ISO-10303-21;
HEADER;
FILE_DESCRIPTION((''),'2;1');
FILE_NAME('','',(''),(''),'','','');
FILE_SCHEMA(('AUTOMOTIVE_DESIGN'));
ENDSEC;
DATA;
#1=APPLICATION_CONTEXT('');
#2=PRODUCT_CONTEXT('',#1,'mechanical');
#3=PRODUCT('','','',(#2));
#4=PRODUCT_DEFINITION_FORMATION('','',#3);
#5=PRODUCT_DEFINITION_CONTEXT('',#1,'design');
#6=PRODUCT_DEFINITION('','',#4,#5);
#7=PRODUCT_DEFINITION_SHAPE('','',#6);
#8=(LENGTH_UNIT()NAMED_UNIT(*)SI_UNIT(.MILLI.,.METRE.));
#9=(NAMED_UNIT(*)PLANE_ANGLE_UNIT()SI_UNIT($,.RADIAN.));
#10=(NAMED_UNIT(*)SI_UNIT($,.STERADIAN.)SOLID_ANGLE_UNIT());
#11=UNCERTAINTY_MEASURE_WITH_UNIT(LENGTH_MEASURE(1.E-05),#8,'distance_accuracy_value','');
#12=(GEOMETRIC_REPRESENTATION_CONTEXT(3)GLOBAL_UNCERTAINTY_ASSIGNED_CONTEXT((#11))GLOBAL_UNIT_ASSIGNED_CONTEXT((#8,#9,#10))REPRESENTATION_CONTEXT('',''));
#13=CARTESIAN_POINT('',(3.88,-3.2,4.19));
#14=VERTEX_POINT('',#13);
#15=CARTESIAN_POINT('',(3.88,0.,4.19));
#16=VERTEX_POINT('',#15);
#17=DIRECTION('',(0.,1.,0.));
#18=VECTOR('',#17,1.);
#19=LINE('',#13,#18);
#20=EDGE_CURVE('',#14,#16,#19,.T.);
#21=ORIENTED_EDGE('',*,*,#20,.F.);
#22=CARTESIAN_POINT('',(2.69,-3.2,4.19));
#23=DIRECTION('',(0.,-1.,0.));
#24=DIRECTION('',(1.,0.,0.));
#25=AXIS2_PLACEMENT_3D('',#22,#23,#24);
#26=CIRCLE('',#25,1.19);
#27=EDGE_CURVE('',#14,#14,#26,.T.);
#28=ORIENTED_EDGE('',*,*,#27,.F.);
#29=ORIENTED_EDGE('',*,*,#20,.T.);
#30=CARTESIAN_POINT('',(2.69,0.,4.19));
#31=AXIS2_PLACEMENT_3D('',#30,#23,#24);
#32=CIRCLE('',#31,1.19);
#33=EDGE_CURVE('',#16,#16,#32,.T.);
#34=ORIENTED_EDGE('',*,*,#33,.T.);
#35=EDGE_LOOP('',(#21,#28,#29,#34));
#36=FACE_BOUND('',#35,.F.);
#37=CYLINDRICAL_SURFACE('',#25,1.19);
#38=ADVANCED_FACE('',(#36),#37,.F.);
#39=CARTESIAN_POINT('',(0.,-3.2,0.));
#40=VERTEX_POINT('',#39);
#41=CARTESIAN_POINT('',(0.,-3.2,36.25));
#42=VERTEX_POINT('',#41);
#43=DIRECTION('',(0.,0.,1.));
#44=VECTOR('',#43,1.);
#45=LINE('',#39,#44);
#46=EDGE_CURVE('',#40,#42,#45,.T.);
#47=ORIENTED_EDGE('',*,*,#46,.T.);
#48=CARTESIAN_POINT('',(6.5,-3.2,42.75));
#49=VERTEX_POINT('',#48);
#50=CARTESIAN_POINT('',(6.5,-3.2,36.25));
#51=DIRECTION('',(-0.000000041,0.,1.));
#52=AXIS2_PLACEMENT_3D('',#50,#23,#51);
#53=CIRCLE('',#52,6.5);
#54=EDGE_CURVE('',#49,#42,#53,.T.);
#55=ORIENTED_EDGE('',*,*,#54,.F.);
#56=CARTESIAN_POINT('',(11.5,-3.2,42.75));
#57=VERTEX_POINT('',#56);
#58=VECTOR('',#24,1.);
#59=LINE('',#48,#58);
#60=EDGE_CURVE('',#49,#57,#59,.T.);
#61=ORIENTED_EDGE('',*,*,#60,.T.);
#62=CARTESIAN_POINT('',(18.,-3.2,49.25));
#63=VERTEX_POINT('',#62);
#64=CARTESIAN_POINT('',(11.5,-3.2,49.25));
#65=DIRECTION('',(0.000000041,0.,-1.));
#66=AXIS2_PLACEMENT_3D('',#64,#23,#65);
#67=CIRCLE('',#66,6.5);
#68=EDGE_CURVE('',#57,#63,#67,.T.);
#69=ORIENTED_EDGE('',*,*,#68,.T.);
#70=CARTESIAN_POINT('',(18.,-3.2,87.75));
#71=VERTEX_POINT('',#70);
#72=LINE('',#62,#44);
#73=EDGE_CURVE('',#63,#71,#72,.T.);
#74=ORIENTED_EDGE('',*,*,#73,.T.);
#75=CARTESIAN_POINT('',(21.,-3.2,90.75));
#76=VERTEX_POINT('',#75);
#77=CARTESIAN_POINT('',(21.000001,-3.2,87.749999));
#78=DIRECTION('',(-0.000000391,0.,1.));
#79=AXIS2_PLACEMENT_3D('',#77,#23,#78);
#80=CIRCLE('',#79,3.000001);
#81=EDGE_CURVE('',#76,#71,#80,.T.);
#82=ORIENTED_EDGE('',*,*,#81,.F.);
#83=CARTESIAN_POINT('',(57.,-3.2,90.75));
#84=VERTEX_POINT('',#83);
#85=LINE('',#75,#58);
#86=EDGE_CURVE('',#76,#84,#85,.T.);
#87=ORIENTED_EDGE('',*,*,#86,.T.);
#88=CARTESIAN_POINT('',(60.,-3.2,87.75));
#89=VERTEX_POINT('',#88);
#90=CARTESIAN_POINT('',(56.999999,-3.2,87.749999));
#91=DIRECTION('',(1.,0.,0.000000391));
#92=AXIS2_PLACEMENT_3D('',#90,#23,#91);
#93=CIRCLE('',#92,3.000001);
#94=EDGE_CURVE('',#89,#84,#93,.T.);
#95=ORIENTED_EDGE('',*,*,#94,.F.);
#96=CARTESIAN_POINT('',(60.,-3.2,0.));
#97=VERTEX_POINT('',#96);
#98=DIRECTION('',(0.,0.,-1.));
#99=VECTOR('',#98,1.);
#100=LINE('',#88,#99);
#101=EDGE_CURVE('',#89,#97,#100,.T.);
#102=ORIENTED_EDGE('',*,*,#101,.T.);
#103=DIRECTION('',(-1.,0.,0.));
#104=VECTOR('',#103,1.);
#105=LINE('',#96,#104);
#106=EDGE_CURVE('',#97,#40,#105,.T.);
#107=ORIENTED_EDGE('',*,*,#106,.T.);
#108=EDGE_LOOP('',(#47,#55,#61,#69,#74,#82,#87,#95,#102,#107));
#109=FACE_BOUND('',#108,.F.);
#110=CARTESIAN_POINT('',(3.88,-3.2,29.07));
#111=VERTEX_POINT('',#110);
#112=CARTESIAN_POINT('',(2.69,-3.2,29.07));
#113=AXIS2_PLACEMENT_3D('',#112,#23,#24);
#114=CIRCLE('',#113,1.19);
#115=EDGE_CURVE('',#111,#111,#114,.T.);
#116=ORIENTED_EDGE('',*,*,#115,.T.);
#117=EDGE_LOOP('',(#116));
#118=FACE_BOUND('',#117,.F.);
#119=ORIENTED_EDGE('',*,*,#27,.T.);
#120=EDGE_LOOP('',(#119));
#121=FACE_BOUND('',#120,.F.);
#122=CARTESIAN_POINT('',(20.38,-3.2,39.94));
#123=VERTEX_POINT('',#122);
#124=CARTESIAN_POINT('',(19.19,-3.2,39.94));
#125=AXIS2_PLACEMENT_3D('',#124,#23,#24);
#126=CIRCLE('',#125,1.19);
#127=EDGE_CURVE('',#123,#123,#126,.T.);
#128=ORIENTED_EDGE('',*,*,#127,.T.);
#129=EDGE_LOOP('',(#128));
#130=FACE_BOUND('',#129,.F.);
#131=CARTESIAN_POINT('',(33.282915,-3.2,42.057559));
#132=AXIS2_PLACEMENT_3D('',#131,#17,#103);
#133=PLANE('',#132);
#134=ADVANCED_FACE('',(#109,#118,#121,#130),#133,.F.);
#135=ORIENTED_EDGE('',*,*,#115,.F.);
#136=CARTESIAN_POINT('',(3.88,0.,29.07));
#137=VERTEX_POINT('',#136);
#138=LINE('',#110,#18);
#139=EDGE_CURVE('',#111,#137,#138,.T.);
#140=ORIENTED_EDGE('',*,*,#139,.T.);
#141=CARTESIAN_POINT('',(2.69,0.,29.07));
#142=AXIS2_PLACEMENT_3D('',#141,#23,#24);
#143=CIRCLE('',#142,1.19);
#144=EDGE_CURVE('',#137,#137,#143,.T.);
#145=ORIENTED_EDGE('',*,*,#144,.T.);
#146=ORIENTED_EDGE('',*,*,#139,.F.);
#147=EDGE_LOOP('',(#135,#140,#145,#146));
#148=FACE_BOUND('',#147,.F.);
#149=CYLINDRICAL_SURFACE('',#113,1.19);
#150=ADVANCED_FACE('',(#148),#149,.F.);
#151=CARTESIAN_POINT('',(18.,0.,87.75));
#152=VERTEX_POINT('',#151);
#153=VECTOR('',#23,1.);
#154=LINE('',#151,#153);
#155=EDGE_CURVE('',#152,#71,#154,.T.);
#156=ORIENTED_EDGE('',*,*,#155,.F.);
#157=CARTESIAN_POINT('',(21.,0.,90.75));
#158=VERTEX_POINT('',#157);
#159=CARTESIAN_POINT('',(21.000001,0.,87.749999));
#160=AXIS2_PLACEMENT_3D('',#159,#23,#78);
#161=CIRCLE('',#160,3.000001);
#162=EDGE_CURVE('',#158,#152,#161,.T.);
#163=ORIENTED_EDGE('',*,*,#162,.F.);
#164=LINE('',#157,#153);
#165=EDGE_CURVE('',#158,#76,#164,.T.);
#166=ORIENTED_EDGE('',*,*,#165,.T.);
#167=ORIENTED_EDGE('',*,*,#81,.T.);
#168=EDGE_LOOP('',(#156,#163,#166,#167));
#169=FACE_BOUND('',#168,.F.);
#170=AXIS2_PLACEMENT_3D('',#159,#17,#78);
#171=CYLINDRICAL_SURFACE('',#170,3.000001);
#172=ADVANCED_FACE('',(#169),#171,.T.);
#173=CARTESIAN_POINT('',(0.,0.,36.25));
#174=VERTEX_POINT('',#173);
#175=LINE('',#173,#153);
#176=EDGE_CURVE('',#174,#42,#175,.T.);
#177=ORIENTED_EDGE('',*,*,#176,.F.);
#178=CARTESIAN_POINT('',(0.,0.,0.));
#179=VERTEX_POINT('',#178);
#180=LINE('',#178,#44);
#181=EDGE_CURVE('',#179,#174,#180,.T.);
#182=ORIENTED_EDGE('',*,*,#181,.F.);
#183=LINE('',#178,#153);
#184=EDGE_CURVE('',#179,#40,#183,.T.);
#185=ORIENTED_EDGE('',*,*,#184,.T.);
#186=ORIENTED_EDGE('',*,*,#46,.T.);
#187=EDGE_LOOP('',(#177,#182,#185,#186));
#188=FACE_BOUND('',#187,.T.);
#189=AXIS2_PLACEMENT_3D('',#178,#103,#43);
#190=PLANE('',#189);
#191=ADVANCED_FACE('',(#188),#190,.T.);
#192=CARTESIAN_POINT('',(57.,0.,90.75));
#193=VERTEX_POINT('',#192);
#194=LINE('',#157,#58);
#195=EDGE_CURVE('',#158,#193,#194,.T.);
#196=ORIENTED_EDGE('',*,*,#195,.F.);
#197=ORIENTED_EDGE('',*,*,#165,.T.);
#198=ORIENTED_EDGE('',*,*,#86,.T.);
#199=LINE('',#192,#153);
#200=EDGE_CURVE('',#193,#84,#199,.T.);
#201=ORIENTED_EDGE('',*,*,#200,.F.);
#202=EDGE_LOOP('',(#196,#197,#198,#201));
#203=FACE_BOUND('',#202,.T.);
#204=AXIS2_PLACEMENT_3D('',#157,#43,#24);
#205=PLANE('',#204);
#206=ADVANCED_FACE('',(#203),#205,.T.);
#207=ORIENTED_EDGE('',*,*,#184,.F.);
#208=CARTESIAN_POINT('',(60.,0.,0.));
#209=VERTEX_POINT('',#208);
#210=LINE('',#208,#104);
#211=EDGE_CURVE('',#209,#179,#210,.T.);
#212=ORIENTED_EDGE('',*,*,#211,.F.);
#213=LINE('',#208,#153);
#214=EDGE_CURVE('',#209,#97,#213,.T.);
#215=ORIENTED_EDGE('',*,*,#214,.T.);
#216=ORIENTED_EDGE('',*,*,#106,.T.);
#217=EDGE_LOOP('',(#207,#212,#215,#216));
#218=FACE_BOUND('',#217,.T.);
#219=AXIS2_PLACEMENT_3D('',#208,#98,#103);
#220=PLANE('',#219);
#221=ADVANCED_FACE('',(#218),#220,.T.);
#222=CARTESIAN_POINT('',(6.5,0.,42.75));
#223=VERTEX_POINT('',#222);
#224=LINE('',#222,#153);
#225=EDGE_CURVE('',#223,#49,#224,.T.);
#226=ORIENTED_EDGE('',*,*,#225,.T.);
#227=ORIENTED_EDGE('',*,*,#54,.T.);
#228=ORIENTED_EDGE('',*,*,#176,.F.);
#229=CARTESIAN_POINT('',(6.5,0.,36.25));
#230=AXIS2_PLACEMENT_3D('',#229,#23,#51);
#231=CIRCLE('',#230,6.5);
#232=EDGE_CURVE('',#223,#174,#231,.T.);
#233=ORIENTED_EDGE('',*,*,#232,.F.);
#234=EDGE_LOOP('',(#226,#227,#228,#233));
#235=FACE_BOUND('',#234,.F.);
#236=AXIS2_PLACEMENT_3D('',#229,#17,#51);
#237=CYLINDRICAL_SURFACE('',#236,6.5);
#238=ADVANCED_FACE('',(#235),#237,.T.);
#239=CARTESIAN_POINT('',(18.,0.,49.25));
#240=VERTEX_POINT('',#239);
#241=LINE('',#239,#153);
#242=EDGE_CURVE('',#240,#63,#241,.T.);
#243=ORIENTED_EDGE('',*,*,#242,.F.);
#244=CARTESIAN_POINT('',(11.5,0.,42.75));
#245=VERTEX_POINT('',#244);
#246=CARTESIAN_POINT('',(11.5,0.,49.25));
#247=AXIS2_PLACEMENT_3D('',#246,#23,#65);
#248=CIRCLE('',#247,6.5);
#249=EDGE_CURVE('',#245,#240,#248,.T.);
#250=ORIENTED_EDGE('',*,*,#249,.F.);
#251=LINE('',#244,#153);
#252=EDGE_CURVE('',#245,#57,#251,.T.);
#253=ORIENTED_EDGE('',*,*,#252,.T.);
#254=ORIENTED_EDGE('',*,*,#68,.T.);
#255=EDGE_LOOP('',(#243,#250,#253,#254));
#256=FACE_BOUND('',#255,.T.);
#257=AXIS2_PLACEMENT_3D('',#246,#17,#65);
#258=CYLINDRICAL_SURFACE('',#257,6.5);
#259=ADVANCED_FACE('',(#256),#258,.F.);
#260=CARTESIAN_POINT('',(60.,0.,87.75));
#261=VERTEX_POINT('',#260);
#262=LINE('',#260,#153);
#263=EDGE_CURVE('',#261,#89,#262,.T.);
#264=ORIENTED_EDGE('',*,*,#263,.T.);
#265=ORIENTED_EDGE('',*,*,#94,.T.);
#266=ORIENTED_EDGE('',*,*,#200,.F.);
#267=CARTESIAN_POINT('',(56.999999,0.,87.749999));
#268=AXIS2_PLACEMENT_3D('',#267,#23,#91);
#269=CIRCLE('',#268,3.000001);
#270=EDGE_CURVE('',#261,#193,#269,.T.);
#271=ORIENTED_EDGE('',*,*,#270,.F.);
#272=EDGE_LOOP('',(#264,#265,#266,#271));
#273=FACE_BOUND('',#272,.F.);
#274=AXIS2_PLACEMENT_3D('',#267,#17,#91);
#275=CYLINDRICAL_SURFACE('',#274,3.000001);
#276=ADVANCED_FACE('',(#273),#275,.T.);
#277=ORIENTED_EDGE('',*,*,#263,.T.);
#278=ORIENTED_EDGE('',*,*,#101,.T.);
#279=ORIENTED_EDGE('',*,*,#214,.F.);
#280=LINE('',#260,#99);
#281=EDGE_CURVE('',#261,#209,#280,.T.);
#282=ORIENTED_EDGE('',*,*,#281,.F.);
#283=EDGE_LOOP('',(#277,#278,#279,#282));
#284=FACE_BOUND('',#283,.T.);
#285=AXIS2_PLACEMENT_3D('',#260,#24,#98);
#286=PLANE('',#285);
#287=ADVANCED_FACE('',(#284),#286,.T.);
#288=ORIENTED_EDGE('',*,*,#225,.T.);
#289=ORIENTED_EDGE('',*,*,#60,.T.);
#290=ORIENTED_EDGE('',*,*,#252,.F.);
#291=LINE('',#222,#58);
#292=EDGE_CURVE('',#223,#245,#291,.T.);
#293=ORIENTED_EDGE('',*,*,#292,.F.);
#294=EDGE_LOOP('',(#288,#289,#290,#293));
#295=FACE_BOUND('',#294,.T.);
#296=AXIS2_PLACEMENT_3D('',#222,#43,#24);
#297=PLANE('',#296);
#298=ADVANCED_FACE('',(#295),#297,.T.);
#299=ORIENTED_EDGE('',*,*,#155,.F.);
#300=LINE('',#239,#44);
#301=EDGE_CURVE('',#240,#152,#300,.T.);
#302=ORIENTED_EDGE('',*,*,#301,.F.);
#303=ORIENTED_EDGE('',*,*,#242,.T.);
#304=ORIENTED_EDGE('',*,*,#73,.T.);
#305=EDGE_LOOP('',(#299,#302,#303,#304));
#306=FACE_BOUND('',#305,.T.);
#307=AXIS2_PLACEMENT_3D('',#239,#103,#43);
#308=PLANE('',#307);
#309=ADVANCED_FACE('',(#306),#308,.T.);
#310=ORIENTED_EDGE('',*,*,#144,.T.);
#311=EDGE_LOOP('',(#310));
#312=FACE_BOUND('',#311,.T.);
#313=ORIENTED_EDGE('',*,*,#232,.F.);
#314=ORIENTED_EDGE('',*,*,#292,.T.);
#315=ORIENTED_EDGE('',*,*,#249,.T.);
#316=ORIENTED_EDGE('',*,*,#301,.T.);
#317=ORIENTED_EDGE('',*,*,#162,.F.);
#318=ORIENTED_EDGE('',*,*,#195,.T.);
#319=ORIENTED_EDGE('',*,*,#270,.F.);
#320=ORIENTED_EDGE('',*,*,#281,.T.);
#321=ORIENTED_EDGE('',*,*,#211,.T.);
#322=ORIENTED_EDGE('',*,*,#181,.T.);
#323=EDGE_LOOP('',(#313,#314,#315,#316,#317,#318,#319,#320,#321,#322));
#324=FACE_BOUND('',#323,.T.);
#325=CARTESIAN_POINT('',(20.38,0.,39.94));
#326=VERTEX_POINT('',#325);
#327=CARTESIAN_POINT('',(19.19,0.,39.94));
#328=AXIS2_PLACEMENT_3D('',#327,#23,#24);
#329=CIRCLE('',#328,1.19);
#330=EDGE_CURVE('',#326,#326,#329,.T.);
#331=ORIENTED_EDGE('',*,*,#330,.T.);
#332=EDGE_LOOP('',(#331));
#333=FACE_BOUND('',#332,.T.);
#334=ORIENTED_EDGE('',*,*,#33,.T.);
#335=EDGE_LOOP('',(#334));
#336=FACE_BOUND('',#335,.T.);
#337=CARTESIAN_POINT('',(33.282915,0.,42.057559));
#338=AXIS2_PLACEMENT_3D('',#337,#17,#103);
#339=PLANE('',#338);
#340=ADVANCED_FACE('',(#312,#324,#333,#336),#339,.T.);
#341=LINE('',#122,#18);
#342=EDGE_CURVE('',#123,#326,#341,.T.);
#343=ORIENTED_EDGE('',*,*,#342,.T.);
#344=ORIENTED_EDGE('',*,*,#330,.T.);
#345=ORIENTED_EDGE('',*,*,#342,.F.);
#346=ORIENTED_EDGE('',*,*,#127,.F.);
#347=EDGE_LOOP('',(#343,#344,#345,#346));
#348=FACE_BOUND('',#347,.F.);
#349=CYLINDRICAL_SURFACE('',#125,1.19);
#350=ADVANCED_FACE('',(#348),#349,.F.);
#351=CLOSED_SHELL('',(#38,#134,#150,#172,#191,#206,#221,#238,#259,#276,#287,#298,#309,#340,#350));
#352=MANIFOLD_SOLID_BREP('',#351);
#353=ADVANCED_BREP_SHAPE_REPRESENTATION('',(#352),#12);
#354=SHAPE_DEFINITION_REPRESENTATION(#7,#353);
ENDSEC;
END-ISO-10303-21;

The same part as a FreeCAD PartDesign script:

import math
import FreeCAD as App
import Part
import Sketcher

doc = App.newDocument("Part")
params = doc.addObject("Spreadsheet::Sheet", "Params")
for row, (alias, value) in enumerate([
    ("sketch1_radius", "3.000001 mm"),
    ("sketch1_radius2", "6.5 mm"),
    ("sketch1_width", "60 mm"),
    ("sketch1_width2", "36 mm"),
    ("sketch1_height", "38.5 mm"),
    ("pad1_length", "3.2 mm"),
    ("sketch2_diameter", "2.38 mm"),
], start=1):
    params.set(f"A{row}", alias)
    params.set(f"B{row}", "=" + value)
    params.setAlias(f"B{row}", alias)

body = doc.addObject("PartDesign::Body", "Body")

sketch1 = doc.addObject("Sketcher::SketchObject", "Sketch")
body.addObject(sketch1)
sketch1.AttachmentSupport = (doc.XZ_Plane, [""])
sketch1.MapMode = "FlatFace"
sketch1.addGeometry(Part.LineSegment(App.Vector(0, 0, 0), App.Vector(60, 0, 0)), False)
sketch1.addGeometry(Part.LineSegment(App.Vector(60, 0, 0), App.Vector(60, 87.8, 0)), False)
sketch1.addGeometry(Part.ArcOfCircle(Part.Circle(App.Vector(57, 87.7, 0), App.Vector(0, 0, 1), 3), math.radians(0), math.radians(90)), False)
sketch1.addGeometry(Part.LineSegment(App.Vector(57, 90.8, 0), App.Vector(21, 90.8, 0)), False)
sketch1.addGeometry(Part.ArcOfCircle(Part.Circle(App.Vector(21, 87.7, 0), App.Vector(0, 0, 1), 3), math.radians(90), math.radians(180)), False)
sketch1.addGeometry(Part.LineSegment(App.Vector(18, 87.8, 0), App.Vector(18, 49.2, 0)), False)
sketch1.addGeometry(Part.ArcOfCircle(Part.Circle(App.Vector(11.5, 49.3, 0), App.Vector(0, 0, 1), 6.5), math.radians(-90), math.radians(0)), False)
sketch1.addGeometry(Part.LineSegment(App.Vector(11.5, 42.8, 0), App.Vector(6.5, 42.8, 0)), False)
sketch1.addGeometry(Part.ArcOfCircle(Part.Circle(App.Vector(6.5, 36.2, 0), App.Vector(0, 0, 1), 6.5), math.radians(90), math.radians(180)), False)
sketch1.addGeometry(Part.LineSegment(App.Vector(0, 36.2, 0), App.Vector(0, 0, 0)), False)
sketch1.addConstraint(Sketcher.Constraint("Coincident", 0, 2, 1, 1))
sketch1.addConstraint(Sketcher.Constraint("Tangent", 1, 2, 2, 1))
sketch1.addConstraint(Sketcher.Constraint("Tangent", 2, 2, 3, 1))
sketch1.addConstraint(Sketcher.Constraint("Tangent", 3, 2, 4, 1))
sketch1.addConstraint(Sketcher.Constraint("Tangent", 4, 2, 5, 1))
sketch1.addConstraint(Sketcher.Constraint("Tangent", 5, 2, 6, 2))
sketch1.addConstraint(Sketcher.Constraint("Tangent", 6, 1, 7, 1))
sketch1.addConstraint(Sketcher.Constraint("Tangent", 7, 2, 8, 1))
sketch1.addConstraint(Sketcher.Constraint("Tangent", 8, 2, 9, 1))
sketch1.addConstraint(Sketcher.Constraint("Coincident", 9, 2, 0, 1))
sketch1.addConstraint(Sketcher.Constraint("Horizontal", 0))
sketch1.addConstraint(Sketcher.Constraint("Vertical", 1))
sketch1.addConstraint(Sketcher.Constraint("Horizontal", 3))
sketch1.addConstraint(Sketcher.Constraint("Vertical", 5))
sketch1.addConstraint(Sketcher.Constraint("Horizontal", 7))
sketch1.addConstraint(Sketcher.Constraint("Vertical", 9))
sketch1.addConstraint(Sketcher.Constraint("Coincident", 9, 2, -1, 1))
sketch1.addConstraint(Sketcher.Constraint("Equal", 2, 4))
sketch1.addConstraint(Sketcher.Constraint("Equal", 6, 8))
sketch1.addConstraint(Sketcher.Constraint("Radius", 2, 3.000001))
sketch1.addConstraint(Sketcher.Constraint("Radius", 6, 6.5))
sketch1.addConstraint(Sketcher.Constraint("DistanceX", 0, 1, 0, 2, 60.0))
sketch1.addConstraint(Sketcher.Constraint("DistanceX", 3, 2, 3, 1, 36.0))
sketch1.addConstraint(Sketcher.Constraint("DistanceY", 5, 2, 5, 1, 38.5))
sketch1.addConstraint(Sketcher.Constraint("DistanceY", 1, 1, 1, 2, 87.75))
sketch1.setExpression("Constraints[19]", "Params.sketch1_radius")
sketch1.setExpression("Constraints[20]", "Params.sketch1_radius2")
sketch1.setExpression("Constraints[21]", "Params.sketch1_width")
sketch1.setExpression("Constraints[22]", "Params.sketch1_width2")
sketch1.setExpression("Constraints[23]", "Params.sketch1_height")
pad1 = doc.addObject("PartDesign::Pad", "Pad")
body.addObject(pad1)
pad1.Profile = sketch1
pad1.setExpression("Length", "Params.pad1_length")

sketch2 = doc.addObject("Sketcher::SketchObject", "Sketch001")
body.addObject(sketch2)
sketch2.AttachmentSupport = (doc.XZ_Plane, [""])
sketch2.MapMode = "FlatFace"
sketch2.AttachmentOffset = App.Placement(App.Vector(0, 0, 3.2), App.Rotation())
sketch2.addGeometry(Part.Circle(App.Vector(19.2, 39.9, 0), App.Vector(0, 0, 1), 1.2), False)
sketch2.addGeometry(Part.Circle(App.Vector(2.7, 29.1, 0), App.Vector(0, 0, 1), 1.2), False)
sketch2.addGeometry(Part.Circle(App.Vector(2.7, 4.2, 0), App.Vector(0, 0, 1), 1.2), False)
sketch2.addConstraint(Sketcher.Constraint("Equal", 0, 1))
sketch2.addConstraint(Sketcher.Constraint("Equal", 1, 2))
sketch2.addConstraint(Sketcher.Constraint("Vertical", 1, 3, 2, 3))
sketch2.addConstraint(Sketcher.Constraint("Diameter", 0, 2.38))
sketch2.addConstraint(Sketcher.Constraint("DistanceX", 1, 3, 0, 3, 16.5))
sketch2.addConstraint(Sketcher.Constraint("DistanceX", -1, 1, 0, 3, 19.19))
sketch2.addConstraint(Sketcher.Constraint("DistanceY", -1, 1, 0, 3, 39.94))
sketch2.addConstraint(Sketcher.Constraint("DistanceY", -1, 1, 1, 3, 29.07))
sketch2.addConstraint(Sketcher.Constraint("DistanceY", -1, 1, 2, 3, 4.19))
sketch2.setExpression("Constraints[3]", "Params.sketch2_diameter")
pocket1 = doc.addObject("PartDesign::Pocket", "Pocket")
body.addObject(pocket1)
pocket1.Profile = sketch2
pocket1.Type = "ThroughAll"

doc.recompute()
